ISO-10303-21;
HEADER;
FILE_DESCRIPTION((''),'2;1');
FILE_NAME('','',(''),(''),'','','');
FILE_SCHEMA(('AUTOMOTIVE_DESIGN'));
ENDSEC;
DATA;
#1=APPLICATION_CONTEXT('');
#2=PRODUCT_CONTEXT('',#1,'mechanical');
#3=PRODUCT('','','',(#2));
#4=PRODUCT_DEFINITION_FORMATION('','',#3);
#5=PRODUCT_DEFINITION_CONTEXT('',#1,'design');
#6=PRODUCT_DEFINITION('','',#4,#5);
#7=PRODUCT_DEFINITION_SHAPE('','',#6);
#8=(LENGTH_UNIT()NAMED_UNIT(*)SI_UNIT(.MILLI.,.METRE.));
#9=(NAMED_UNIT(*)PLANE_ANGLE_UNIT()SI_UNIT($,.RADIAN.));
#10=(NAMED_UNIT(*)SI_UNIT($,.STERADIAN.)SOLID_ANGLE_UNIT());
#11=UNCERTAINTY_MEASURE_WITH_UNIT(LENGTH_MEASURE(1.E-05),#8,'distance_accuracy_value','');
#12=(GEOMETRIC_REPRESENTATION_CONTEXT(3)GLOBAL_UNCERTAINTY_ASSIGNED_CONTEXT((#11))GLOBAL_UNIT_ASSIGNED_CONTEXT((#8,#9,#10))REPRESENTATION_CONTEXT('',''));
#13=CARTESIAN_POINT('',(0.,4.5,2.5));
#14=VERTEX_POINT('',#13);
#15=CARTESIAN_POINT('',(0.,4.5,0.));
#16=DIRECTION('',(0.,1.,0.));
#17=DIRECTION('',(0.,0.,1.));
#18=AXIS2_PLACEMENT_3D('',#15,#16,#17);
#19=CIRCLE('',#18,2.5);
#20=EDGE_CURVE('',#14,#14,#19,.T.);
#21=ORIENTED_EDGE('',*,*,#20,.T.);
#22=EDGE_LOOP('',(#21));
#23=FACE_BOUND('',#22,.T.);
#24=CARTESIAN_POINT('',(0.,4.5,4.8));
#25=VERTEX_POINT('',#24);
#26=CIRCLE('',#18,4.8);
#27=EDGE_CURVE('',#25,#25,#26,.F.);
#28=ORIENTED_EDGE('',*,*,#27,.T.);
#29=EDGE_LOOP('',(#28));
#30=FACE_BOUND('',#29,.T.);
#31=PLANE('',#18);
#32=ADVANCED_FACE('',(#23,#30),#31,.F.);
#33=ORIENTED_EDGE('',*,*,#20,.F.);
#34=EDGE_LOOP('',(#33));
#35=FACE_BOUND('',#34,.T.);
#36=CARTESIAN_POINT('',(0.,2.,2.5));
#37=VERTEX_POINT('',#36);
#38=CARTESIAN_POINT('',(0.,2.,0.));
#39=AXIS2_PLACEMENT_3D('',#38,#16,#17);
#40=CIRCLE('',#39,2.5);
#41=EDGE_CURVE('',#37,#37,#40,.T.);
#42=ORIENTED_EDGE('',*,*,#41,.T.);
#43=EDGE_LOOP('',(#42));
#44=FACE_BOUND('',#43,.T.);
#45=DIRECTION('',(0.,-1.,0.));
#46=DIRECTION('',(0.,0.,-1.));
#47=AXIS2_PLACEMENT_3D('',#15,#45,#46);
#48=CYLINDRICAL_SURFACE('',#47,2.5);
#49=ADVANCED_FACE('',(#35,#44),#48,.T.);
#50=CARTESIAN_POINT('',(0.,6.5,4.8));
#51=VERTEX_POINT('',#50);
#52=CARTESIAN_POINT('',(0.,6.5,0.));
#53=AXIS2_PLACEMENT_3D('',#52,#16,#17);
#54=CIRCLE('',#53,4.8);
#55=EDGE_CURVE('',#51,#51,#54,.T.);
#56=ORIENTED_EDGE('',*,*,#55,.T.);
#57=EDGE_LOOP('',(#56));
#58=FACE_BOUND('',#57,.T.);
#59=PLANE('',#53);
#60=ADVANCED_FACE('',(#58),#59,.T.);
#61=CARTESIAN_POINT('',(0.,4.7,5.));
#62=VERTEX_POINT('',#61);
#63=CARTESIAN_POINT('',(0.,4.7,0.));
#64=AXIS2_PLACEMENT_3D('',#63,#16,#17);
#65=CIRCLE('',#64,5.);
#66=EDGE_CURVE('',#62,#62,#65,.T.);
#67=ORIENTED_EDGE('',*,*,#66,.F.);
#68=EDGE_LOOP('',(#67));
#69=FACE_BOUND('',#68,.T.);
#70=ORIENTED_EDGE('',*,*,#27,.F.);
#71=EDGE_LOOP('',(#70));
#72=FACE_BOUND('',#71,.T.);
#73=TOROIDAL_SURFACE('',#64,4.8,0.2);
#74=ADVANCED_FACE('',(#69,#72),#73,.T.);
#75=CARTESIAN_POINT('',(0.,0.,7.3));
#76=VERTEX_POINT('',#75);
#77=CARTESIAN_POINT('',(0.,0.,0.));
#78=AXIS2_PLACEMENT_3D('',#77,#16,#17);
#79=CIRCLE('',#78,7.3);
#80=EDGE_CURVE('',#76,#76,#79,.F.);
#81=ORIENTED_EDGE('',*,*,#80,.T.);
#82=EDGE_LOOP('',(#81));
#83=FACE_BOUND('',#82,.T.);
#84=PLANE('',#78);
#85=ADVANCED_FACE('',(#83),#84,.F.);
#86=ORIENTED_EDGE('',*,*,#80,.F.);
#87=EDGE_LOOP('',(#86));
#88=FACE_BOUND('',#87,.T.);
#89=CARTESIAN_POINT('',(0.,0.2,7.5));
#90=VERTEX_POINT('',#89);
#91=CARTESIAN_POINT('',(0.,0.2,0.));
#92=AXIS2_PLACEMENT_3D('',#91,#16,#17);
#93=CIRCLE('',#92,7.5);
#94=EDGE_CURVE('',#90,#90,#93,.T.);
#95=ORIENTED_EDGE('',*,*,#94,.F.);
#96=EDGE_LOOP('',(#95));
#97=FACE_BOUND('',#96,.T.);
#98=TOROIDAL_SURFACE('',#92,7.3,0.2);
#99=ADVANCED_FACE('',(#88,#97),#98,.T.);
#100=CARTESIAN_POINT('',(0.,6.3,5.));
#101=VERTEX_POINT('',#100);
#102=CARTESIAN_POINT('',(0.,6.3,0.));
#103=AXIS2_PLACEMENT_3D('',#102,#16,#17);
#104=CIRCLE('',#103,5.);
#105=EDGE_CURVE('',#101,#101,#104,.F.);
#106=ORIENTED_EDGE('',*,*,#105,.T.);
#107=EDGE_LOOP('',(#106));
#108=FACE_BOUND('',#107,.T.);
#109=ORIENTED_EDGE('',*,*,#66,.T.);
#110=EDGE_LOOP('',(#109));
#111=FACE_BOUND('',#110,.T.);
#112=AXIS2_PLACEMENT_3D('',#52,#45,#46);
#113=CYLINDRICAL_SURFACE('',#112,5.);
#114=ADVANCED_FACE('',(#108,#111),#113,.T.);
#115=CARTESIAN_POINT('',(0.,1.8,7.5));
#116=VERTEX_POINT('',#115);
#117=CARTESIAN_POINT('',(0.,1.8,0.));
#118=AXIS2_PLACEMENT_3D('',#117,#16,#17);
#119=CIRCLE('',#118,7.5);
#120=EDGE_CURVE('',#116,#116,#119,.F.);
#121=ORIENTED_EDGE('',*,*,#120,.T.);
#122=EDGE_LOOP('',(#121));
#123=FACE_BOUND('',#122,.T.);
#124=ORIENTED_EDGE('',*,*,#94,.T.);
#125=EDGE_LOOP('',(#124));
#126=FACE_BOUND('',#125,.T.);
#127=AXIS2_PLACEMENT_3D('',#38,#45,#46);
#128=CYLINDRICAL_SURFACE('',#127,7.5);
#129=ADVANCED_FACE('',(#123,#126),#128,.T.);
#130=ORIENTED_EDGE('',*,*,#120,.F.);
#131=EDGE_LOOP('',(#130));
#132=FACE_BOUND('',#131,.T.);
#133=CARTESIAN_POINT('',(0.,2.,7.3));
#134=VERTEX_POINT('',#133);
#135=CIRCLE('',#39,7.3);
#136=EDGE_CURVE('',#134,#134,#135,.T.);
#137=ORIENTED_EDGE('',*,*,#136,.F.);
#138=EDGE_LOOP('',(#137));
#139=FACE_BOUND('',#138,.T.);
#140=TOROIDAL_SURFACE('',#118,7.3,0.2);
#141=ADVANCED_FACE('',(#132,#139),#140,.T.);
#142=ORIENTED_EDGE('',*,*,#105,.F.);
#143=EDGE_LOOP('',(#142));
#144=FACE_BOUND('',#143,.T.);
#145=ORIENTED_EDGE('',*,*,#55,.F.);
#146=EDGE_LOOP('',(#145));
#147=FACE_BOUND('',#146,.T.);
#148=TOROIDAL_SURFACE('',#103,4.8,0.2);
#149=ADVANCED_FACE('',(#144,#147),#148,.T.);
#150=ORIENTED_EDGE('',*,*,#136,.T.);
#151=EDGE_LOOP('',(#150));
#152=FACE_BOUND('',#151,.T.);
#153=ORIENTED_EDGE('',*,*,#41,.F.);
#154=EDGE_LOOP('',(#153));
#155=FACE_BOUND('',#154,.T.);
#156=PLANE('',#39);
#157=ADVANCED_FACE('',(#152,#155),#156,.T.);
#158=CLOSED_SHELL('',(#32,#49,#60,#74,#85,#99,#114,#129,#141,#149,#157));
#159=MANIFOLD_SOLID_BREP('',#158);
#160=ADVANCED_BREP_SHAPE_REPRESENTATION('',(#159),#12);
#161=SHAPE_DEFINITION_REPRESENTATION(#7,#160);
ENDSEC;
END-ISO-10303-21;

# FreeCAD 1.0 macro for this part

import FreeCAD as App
import Part
import Sketcher
from FreeCAD import Vector
Q = App.Units.Quantity


def edges_at(feature, points):
    """Names of the edges that pass closest to the given points."""
    edges = feature.Shape.Edges
    near = lambda p: min(range(len(edges)), key=lambda i: edges[i].distToShape(Part.Vertex(*p))[0])
    return sorted({f"Edge{near(p) + 1}" for p in points})

doc = App.newDocument("Part")
body = doc.addObject("PartDesign::Body", "Body")

sketch1 = body.newObject("Sketcher::SketchObject", "Sketch")
sketch1.AttachmentSupport = (doc.getObject("XZ_Plane"), [""])
sketch1.MapMode = "FlatFace"
sketch1.addGeometry(Part.Circle(Vector(0, 0, 0), Vector(0, 0, 1), 8), False)
sketch1.addConstraint([
    Sketcher.Constraint("Coincident", 0, 3, -1, 1),
    Sketcher.Constraint("Diameter", 0, Q("15 mm")),
])
pad1 = body.newObject("PartDesign::Pad", "Pad")
pad1.Profile = sketch1
pad1.Length = 2
pad1.Reversed = True

sketch2 = body.newObject("Sketcher::SketchObject", "Sketch001")
sketch2.AttachmentSupport = (doc.getObject("XZ_Plane"), [""])
sketch2.MapMode = "FlatFace"
sketch2.AttachmentOffset = App.Placement(Vector(0, 0, -2), App.Rotation())
sketch2.addGeometry(Part.Circle(Vector(0, 0, 0), Vector(0, 0, 1), 2.5), False)
sketch2.addConstraint([
    Sketcher.Constraint("Coincident", 0, 3, -1, 1),
    Sketcher.Constraint("Diameter", 0, Q("5 mm")),
])
pad2 = body.newObject("PartDesign::Pad", "Pad001")
pad2.Profile = sketch2
pad2.Length = 2.5
pad2.Reversed = True

sketch3 = body.newObject("Sketcher::SketchObject", "Sketch002")
sketch3.AttachmentSupport = (doc.getObject("XZ_Plane"), [""])
sketch3.MapMode = "FlatFace"
sketch3.AttachmentOffset = App.Placement(Vector(0, 0, -4.5), App.Rotation())
sketch3.addGeometry(Part.Circle(Vector(0, 0, 0), Vector(0, 0, 1), 5), False)
sketch3.addConstraint([
    Sketcher.Constraint("Coincident", 0, 3, -1, 1),
    Sketcher.Constraint("Diameter", 0, Q("10 mm")),
])
pad3 = body.newObject("PartDesign::Pad", "Pad002")
pad3.Profile = sketch3
pad3.Length = 2
pad3.Reversed = True
doc.recompute()

fillet = body.newObject("PartDesign::Fillet", "Fillet")
fillet.Base = (pad3, edges_at(pad3, [
    (0, 6.5, -5),
    (0, 0, -7.5),
    (0, 2, -7.5),
    (0, 4.5, -5),
]))
fillet.Radius = 0.2

doc.recompute()
